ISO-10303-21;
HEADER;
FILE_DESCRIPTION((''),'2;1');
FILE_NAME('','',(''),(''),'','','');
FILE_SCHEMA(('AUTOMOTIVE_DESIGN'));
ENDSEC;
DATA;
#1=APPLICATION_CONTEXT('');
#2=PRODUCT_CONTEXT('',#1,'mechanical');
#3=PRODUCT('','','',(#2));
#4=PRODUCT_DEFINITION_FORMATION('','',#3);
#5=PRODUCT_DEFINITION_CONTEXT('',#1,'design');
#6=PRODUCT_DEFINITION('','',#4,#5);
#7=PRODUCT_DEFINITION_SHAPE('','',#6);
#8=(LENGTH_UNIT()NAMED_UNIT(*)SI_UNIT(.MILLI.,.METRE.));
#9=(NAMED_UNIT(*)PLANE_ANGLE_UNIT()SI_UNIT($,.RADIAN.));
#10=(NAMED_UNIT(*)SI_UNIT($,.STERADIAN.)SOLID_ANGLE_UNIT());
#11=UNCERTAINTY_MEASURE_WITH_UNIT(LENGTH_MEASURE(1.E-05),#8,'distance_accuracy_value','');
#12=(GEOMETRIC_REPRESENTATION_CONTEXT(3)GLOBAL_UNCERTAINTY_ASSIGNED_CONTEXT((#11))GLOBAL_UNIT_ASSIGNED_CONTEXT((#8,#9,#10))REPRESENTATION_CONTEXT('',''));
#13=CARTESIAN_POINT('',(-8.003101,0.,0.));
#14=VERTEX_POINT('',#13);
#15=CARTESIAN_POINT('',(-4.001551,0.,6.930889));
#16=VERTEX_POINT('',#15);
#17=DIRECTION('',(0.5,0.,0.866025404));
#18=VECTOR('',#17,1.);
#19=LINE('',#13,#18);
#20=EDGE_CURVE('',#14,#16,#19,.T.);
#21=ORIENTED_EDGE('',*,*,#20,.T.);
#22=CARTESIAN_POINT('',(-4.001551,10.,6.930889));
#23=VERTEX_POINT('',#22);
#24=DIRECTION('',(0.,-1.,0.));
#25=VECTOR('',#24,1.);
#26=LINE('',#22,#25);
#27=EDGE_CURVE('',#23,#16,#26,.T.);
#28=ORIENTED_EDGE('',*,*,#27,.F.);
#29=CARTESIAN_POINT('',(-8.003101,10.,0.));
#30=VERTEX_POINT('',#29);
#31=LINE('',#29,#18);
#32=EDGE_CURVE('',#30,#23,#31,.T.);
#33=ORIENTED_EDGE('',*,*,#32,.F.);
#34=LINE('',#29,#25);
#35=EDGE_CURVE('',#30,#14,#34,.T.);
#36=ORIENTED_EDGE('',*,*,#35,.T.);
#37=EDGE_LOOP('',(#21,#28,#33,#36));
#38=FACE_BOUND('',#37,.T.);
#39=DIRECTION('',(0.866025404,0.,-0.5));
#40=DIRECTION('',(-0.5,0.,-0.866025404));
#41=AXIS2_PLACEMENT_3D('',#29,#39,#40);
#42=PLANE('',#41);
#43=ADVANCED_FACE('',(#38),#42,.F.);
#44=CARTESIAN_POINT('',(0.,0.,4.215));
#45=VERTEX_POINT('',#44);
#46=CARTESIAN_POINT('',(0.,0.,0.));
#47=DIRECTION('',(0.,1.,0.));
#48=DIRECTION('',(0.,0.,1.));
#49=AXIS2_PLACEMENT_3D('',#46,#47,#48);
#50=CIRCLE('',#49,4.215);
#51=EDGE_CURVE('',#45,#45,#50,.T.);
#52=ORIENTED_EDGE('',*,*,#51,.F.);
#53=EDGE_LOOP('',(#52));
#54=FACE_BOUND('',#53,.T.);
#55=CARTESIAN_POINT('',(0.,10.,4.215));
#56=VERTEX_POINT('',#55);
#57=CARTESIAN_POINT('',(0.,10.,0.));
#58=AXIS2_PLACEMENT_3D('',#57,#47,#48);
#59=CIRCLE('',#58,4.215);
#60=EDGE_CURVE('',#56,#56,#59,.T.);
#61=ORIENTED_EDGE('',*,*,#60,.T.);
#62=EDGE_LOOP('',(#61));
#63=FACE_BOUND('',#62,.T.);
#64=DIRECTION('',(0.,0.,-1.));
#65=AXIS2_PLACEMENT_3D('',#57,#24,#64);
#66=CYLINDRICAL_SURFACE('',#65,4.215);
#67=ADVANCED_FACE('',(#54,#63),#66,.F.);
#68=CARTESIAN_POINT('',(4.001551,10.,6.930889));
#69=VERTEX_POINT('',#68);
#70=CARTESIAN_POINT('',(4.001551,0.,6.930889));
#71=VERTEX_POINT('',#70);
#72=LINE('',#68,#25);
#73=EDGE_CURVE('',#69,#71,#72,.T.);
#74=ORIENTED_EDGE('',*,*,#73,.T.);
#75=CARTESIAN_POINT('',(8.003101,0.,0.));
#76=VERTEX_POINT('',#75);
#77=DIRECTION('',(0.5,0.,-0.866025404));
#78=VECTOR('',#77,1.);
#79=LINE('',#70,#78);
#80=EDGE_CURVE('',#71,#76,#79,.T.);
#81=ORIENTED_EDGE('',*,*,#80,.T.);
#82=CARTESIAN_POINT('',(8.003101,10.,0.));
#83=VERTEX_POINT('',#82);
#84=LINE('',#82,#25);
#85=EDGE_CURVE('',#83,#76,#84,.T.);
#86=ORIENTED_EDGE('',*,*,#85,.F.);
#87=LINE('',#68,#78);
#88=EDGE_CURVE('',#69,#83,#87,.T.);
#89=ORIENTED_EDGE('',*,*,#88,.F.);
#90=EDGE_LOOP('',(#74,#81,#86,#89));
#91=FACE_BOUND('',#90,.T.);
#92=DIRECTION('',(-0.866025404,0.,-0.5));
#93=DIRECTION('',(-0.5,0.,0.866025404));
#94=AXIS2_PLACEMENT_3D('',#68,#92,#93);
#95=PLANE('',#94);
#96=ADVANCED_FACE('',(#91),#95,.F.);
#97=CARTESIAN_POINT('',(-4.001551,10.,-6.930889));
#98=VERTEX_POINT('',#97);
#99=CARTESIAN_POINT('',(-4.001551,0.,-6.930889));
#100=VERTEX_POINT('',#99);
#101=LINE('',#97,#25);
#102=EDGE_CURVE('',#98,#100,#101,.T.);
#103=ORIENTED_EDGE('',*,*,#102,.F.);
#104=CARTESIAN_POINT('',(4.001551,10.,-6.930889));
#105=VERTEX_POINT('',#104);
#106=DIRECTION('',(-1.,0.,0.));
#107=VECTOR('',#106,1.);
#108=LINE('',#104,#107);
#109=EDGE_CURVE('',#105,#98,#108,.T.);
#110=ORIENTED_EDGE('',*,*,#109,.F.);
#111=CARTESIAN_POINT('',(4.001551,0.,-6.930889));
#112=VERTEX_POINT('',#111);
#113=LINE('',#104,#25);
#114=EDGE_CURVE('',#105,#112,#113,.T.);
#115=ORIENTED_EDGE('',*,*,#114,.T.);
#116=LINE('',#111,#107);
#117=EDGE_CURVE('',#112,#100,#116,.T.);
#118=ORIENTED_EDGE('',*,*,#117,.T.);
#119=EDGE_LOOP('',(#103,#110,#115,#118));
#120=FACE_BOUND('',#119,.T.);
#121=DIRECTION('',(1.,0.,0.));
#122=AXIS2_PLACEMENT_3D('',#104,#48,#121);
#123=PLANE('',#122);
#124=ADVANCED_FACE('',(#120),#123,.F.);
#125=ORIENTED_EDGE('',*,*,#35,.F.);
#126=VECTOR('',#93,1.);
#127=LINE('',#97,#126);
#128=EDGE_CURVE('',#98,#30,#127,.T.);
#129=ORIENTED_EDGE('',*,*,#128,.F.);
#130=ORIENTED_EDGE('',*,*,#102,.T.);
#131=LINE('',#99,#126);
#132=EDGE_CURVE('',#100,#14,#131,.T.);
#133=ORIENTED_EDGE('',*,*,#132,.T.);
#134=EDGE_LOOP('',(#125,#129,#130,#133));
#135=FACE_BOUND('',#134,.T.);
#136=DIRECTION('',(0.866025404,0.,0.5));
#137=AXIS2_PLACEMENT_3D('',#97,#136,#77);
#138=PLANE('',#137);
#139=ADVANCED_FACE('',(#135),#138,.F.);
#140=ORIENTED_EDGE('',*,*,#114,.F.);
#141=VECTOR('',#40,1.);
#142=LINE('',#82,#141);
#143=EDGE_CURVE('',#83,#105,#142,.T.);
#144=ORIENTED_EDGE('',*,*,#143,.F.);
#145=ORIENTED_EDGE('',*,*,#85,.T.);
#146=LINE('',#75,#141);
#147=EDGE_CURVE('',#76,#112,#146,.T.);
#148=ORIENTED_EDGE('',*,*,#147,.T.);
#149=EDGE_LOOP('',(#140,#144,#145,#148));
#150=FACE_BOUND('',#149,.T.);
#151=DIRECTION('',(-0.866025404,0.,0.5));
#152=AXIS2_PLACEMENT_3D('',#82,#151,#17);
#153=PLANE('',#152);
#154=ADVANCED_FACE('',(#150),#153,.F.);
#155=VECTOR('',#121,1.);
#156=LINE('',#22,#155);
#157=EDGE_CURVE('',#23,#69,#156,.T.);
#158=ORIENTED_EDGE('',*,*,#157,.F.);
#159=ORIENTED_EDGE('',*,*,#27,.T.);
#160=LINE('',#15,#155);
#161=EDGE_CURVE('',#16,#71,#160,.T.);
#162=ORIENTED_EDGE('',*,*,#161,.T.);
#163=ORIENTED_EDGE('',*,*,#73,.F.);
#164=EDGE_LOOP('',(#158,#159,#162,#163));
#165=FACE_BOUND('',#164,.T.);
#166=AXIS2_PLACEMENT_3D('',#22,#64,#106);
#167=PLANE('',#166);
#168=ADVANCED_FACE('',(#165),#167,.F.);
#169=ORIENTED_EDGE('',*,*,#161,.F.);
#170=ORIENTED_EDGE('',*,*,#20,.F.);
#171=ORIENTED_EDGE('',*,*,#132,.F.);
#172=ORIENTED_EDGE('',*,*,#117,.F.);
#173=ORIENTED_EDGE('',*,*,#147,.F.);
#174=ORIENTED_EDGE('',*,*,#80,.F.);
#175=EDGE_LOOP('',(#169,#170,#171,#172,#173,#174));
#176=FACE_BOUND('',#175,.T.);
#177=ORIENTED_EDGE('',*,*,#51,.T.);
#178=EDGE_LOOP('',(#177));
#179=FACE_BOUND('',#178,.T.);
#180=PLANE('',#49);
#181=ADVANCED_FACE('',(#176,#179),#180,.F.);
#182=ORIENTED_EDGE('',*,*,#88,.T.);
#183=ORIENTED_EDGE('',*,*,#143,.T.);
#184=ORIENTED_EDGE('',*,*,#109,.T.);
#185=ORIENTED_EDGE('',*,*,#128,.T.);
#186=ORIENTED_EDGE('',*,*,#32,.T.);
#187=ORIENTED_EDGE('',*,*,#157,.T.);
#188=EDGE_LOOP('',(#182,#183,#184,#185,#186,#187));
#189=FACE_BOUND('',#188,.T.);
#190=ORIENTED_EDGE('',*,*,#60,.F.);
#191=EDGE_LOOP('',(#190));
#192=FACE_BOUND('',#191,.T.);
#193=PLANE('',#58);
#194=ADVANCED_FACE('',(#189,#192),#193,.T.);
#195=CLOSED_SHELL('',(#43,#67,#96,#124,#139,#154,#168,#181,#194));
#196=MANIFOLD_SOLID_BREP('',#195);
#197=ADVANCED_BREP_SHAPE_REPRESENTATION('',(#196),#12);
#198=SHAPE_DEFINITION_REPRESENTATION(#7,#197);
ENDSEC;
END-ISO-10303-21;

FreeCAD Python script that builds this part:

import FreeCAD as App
import Part
import Sketcher
from FreeCAD import Vector
Q = App.Units.Quantity


def add_polygon(sketch, points):
    """Adds a closed chain of lines whose ends are joined by coincident constraints."""
    first, n = sketch.GeometryCount, len(points)
    for a, b in zip(points, points[1:] + points[:1]):
        sketch.addGeometry(Part.LineSegment(App.Vector(*a, 0), App.Vector(*b, 0)), False)
    for i in range(n):
        sketch.addConstraint(Sketcher.Constraint("Coincident", first + i, 2, first + (i + 1) % n, 1))

doc = App.newDocument("Part")
body = doc.addObject("PartDesign::Body", "Body")

# Sketch on XZ plane
sketch1 = body.newObject("Sketcher::SketchObject", "Sketch")
sketch1.AttachmentSupport = (doc.getObject("XZ_Plane"), [""])
sketch1.MapMode = "FlatFace"
add_polygon(sketch1, [(8, 0), (4, -6.9), (-4, -6.9), (-8, 0), (-4, 6.9), (4, 6.9)])  # lines 0-5
sketch1.addGeometry(Part.Circle(Vector(0, 0, 0), Vector(0, 0, 1), 4.2), False)  # 6
sketch1.addConstraint(Sketcher.Constraint("Horizontal", 1))
sketch1.addConstraint(Sketcher.Constraint("Horizontal", 4))
sketch1.addConstraint(Sketcher.Constraint("Coincident", 6, 3, -1, 1))
sketch1.addConstraint(Sketcher.Constraint("Symmetric", 0, 2, 3, 2, -1, 1))
sketch1.addConstraint(Sketcher.Constraint("Symmetric", 2, 2, 5, 2, -1, 1))
sketch1.addConstraint(Sketcher.Constraint("PointOnObject", 2, 2, -1))
sketch1.addConstraint(Sketcher.Constraint("Parallel", 2, 5))
sketch1.addConstraint(Sketcher.Constraint("Vertical", 1, 2, 3, 2))
sketch1.addConstraint(Sketcher.Constraint("Diameter", 6, Q("8.43 mm")))
sketch1.addConstraint(Sketcher.Constraint("Angle", 0, Q("-120 deg")))
sketch1.addConstraint(Sketcher.Constraint("DistanceX", 1, 2, 1, 1, Q("8.003101 mm")))
sketch1.addConstraint(Sketcher.Constraint("Distance", 0, Q("8.003101 mm")))
pad1 = body.newObject("PartDesign::Pad", "Pad")
pad1.Profile = sketch1
pad1.Length = 10
pad1.Reversed = True

doc.recompute()
